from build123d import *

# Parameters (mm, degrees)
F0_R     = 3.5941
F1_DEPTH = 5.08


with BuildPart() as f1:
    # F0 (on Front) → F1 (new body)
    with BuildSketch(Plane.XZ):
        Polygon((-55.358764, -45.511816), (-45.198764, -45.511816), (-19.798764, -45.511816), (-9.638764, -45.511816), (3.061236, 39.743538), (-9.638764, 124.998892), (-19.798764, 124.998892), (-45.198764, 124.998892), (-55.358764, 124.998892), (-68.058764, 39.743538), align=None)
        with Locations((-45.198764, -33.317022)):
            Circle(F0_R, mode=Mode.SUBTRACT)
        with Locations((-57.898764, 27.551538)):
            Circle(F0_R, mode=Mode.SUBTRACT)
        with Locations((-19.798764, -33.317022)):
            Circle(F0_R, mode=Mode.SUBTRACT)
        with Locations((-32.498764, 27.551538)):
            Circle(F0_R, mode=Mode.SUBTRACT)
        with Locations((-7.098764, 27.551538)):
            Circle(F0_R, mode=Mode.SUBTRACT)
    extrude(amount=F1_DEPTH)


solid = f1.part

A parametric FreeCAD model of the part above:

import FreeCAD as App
import Part
import Sketcher
from FreeCAD import Vector
Q = App.Units.Quantity

doc = App.newDocument("Part")
body = doc.addObject("PartDesign::Body", "Body")

# Sketch on XZ plane
sketch1 = body.newObject("Sketcher::SketchObject", "Sketch")
sketch1.AttachmentSupport = (doc.getObject("XZ_Plane"), [""])
sketch1.MapMode = "FlatFace"
sketch1.addGeometry([
    Part.LineSegment(Vector(-55.4, -45.5, 0), Vector(-9.6, -45.5, 0)),  # 0
    Part.LineSegment(Vector(-9.6, -45.5, 0), Vector(3.1, 39.7, 0)),  # 1
    Part.LineSegment(Vector(3.1, 39.7, 0), Vector(-9.6, 125, 0)),  # 2
    Part.LineSegment(Vector(-9.6, 125, 0), Vector(-55.4, 125, 0)),  # 3
    Part.LineSegment(Vector(-55.4, 125, 0), Vector(-68.1, 39.7, 0)),  # 4
    Part.LineSegment(Vector(-68.1, 39.7, 0), Vector(-55.4, -45.5, 0)),  # 5
    Part.Circle(Vector(-45.2, -33.3, 0), Vector(0, 0, 1), 3.6),  # 6
    Part.Circle(Vector(-19.8, -33.3, 0), Vector(0, 0, 1), 3.6),  # 7
    Part.Circle(Vector(-57.9, 27.6, 0), Vector(0, 0, 1), 3.6),  # 8
    Part.Circle(Vector(-32.5, 27.6, 0), Vector(0, 0, 1), 3.6),  # 9
    Part.Circle(Vector(-7.1, 27.6, 0), Vector(0, 0, 1), 3.6),  # 10
], False)
sketch1.addConstraint([
    Sketcher.Constraint("Coincident", 0, 2, 1, 1),
    Sketcher.Constraint("Coincident", 1, 2, 2, 1),
    Sketcher.Constraint("Coincident", 2, 2, 3, 1),
    Sketcher.Constraint("Coincident", 3, 2, 4, 1),
    Sketcher.Constraint("Coincident", 4, 2, 5, 1),
    Sketcher.Constraint("Coincident", 5, 2, 0, 1),
    Sketcher.Constraint("Horizontal", 0),
    Sketcher.Constraint("Horizontal", 3),
    Sketcher.Constraint("Equal", 6, 7),
    Sketcher.Constraint("Equal", 7, 8),
    Sketcher.Constraint("Equal", 8, 9),
    Sketcher.Constraint("Equal", 9, 10),
    Sketcher.Constraint("Parallel", 1, 4),
    Sketcher.Constraint("Parallel", 2, 5),
    Sketcher.Constraint("Horizontal", 6, 3, 7, 3),
    Sketcher.Constraint("Horizontal", 8, 3, 9, 3),
    Sketcher.Constraint("Horizontal", 9, 3, 10, 3),
    Sketcher.Constraint("Horizontal", 1, 2, 4, 2),
    Sketcher.Constraint("Vertical", 0, 2, 2, 2),
    Sketcher.Constraint("Vertical", 3, 2, 5, 2),
    Sketcher.Constraint("Diameter", 6, Q("0.283 in")),
    Sketcher.Constraint("DistanceX", 0, 1, 0, 2, Q("1.8 in")),
    Sketcher.Constraint("DistanceX", 6, 3, 7, 3, Q("1 in")),
    Sketcher.Constraint("DistanceX", 8, 3, 9, 3, Q("1 in")),
    Sketcher.Constraint("DistanceX", 9, 3, 10, 3, Q("1 in")),
    Sketcher.Constraint("DistanceX", 8, 3, 6, 3, Q("0.5 in")),
    Sketcher.Constraint("DistanceX", 7, 3, 0, 2, Q("0.4 in")),
    Sketcher.Constraint("DistanceX", 10, 3, 1, 2, Q("0.4 in")),
    Sketcher.Constraint("DistanceY", 10, 3, 1, 2, Q("0.48 in")),
    Sketcher.Constraint("DistanceY", 6, 3, 8, 3, Q("2.3964 in")),
    Sketcher.Constraint("DistanceY", -1, 1, 8, 3, Q("27.551538 mm")),
    Sketcher.Constraint("DistanceY", -1, 1, 2, 2, Q("124.998892 mm")),
    Sketcher.Constraint("DistanceX", 6, 3, -1, 1, Q("45.198764 mm")),
])
pad1 = body.newObject("PartDesign::Pad", "Pad")
pad1.Profile = sketch1
pad1.Length = Q("0.2 in")

doc.recompute()
